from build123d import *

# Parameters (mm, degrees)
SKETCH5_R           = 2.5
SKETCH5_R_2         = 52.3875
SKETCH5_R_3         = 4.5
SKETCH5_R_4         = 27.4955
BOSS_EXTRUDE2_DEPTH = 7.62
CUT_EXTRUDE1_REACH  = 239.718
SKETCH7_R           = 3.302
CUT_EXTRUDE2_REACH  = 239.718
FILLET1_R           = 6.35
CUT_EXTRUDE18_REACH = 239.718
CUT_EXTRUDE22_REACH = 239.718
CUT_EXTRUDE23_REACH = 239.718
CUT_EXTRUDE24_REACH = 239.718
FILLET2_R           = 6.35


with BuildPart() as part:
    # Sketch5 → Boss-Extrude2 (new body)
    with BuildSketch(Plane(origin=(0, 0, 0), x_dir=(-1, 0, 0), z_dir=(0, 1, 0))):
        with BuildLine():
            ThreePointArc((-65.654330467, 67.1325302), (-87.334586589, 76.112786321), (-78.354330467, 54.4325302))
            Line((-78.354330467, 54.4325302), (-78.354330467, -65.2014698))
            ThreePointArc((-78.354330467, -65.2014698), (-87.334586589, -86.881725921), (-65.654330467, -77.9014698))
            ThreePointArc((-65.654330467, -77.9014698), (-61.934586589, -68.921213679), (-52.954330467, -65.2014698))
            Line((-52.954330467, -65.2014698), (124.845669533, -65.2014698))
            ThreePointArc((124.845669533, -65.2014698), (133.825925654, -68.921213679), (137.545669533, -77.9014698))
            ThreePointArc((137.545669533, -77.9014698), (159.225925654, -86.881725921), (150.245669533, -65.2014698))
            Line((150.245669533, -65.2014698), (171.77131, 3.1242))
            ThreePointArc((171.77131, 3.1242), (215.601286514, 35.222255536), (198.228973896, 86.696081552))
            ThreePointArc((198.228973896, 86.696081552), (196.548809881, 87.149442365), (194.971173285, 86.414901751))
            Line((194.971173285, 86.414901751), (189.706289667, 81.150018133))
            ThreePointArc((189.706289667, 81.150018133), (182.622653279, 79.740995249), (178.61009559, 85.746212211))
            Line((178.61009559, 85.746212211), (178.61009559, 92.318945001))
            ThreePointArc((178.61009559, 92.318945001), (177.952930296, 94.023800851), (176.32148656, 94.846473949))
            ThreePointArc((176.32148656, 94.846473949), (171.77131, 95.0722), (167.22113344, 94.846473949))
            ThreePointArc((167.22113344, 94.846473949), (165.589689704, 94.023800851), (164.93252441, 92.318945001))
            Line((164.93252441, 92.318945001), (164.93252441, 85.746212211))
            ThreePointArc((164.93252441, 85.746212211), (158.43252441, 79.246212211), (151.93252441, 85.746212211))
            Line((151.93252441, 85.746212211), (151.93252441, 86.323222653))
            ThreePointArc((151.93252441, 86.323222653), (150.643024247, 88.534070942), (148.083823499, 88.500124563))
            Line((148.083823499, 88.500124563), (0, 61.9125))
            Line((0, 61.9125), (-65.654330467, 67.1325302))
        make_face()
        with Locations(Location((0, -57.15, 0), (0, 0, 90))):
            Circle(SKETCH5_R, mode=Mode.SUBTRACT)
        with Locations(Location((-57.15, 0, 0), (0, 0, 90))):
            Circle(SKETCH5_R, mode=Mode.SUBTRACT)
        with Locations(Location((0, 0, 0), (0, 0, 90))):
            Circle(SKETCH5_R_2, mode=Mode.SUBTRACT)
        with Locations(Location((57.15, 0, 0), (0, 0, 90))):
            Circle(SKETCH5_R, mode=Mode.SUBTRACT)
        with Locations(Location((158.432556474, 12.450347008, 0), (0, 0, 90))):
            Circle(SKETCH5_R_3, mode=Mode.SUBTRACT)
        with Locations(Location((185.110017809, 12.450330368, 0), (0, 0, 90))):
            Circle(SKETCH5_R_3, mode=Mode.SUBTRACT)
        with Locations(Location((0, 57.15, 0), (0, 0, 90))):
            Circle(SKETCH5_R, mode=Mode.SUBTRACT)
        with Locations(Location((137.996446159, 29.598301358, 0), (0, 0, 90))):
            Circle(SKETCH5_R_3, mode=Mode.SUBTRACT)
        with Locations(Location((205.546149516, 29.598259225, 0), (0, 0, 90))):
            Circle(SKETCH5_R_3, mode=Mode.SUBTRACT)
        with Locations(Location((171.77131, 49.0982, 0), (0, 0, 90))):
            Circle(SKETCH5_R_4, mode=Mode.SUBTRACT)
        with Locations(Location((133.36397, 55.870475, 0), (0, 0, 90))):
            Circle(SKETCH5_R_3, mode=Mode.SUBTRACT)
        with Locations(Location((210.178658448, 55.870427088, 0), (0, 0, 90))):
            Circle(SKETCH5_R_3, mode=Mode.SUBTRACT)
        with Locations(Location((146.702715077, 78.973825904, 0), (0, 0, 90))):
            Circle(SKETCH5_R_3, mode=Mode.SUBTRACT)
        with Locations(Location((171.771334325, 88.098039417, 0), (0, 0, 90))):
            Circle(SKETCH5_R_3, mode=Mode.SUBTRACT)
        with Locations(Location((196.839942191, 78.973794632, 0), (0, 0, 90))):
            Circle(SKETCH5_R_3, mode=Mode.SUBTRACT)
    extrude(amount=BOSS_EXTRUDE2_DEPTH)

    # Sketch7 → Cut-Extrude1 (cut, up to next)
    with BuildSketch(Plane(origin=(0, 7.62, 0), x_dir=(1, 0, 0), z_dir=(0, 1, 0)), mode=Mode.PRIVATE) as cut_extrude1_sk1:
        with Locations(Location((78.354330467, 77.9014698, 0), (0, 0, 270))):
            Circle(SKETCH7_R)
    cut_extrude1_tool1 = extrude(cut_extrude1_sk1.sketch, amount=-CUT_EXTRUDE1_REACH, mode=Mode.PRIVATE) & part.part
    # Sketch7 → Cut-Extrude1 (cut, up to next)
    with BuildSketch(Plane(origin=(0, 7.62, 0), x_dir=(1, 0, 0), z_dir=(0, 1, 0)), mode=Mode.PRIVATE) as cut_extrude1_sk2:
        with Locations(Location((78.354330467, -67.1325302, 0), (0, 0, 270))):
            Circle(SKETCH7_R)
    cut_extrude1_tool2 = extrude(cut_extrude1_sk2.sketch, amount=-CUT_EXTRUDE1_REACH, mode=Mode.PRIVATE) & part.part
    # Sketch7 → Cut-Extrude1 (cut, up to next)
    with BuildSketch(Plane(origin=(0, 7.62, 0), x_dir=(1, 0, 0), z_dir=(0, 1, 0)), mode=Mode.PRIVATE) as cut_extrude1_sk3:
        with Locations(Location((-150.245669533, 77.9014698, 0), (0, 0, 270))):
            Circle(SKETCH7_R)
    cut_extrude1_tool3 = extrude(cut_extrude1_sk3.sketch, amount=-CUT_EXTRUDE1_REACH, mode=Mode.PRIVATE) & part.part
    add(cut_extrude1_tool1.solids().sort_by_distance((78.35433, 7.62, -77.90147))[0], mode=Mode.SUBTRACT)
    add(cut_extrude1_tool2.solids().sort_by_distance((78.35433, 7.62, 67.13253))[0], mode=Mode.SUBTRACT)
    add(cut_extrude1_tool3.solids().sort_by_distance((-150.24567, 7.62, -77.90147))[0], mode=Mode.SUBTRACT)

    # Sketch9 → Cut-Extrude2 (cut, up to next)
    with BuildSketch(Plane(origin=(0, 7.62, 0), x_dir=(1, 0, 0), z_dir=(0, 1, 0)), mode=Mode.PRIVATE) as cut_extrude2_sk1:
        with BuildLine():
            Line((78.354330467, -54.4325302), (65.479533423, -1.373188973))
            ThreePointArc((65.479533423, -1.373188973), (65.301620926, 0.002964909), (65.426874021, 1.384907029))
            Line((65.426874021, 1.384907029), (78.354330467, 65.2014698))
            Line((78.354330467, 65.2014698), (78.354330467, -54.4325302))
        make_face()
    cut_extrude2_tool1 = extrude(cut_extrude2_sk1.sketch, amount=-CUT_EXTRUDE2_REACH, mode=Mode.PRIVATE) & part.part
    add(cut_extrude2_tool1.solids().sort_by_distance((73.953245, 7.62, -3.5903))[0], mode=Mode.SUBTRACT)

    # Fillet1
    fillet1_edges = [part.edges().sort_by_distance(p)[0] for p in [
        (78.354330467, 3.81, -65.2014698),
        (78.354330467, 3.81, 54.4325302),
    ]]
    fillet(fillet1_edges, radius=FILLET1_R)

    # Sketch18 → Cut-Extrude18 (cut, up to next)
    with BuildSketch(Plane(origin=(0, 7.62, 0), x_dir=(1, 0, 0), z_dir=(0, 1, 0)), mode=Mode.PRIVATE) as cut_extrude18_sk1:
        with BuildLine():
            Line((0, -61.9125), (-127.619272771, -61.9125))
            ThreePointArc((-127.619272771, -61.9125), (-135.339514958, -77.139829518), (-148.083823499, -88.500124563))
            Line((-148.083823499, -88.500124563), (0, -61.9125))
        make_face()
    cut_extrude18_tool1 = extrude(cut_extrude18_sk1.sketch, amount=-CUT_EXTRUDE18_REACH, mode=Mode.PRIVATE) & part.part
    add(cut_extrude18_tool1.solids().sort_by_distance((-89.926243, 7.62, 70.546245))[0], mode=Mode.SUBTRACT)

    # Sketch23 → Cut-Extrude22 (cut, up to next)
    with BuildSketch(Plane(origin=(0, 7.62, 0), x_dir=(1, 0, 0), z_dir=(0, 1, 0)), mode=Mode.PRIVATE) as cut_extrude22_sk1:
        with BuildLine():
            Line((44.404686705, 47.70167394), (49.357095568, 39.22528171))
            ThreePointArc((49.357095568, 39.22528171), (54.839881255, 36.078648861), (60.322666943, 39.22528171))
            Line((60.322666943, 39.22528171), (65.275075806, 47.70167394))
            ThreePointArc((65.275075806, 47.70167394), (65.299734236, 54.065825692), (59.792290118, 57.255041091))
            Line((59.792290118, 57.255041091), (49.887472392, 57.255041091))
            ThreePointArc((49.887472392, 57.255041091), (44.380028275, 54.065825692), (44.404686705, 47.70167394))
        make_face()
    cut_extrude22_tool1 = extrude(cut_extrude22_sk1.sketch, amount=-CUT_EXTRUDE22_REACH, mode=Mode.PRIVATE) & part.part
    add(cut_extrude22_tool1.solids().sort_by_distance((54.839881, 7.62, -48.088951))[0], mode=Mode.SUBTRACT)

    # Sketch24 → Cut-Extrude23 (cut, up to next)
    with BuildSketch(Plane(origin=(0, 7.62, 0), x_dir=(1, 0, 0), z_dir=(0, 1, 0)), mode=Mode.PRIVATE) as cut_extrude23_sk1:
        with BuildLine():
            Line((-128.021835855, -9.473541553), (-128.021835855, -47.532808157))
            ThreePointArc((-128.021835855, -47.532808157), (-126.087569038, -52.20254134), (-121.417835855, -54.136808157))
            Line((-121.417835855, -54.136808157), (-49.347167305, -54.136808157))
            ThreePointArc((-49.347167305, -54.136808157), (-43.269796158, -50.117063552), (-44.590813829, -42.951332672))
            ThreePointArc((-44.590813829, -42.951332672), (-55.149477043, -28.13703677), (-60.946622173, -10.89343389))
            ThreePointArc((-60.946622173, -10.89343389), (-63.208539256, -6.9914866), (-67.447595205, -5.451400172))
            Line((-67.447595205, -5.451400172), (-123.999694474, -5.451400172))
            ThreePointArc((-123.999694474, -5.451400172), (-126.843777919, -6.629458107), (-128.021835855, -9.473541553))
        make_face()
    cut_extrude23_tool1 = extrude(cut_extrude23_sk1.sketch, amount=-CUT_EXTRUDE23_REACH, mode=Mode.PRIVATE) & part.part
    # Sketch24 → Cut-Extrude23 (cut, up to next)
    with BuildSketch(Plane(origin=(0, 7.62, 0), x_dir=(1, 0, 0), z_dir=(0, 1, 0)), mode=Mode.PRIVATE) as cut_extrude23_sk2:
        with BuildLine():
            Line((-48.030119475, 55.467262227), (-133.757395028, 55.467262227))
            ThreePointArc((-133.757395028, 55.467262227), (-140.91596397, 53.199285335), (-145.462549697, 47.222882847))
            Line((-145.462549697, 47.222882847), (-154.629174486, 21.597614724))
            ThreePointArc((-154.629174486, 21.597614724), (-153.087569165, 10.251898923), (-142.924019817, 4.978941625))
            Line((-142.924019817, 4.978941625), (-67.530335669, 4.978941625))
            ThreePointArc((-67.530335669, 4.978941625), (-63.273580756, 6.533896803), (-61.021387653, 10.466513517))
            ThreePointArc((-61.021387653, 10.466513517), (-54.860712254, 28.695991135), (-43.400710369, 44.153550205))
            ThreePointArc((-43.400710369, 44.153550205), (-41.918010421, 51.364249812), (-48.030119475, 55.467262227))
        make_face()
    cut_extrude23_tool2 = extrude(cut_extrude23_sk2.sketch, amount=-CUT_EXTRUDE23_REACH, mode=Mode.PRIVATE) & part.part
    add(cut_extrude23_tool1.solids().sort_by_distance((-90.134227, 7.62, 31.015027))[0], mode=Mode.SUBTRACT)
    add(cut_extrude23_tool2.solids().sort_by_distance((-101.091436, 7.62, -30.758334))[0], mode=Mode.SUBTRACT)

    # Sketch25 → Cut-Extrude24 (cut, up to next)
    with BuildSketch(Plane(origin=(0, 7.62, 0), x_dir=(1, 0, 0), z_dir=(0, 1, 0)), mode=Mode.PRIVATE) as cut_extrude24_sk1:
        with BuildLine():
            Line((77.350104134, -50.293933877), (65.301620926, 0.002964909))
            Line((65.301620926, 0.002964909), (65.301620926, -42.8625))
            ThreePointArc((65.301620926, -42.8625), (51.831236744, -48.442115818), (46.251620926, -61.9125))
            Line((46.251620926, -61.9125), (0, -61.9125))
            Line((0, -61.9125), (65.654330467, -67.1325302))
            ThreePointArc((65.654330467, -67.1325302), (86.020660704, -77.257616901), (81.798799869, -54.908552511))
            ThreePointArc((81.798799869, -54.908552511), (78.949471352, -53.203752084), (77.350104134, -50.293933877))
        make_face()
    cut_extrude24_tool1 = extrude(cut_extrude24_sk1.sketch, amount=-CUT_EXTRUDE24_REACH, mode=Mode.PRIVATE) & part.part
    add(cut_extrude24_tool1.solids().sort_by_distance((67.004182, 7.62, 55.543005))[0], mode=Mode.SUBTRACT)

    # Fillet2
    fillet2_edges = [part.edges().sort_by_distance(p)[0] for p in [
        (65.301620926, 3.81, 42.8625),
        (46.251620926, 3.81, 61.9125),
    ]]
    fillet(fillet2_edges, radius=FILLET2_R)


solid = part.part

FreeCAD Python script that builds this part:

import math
import FreeCAD as App
import Part
import Sketcher

V = App.Vector
Q = App.Units.Quantity


def edges_at(feature, points):
    """Names of the edges that pass closest to the given points."""
    edges = feature.Shape.Edges
    near = lambda p: min(range(len(edges)), key=lambda i: edges[i].distToShape(Part.Vertex(*p))[0])
    return sorted({f"Edge{near(p) + 1}" for p in points})

doc = App.newDocument("Part")
body = doc.addObject("PartDesign::Body", "Body")

# Sketch on XZ plane
sketch1 = body.newObject("Sketcher::SketchObject", "Sketch")
sketch1.AttachmentSupport = (doc.getObject("XZ_Plane"), [""])
sketch1.MapMode = "FlatFace"
sketch1.addGeometry([
    Part.ArcOfCircle(Part.Circle(V(78.4, 67.1, 0), V(0, 0, 1), 12.7), math.radians(-90), math.radians(180)),  # 0
    Part.LineSegment(V(78.4, 54.4, 0), V(78.4, -65.2, 0)),  # 1
    Part.ArcOfCircle(Part.Circle(V(78.4, -77.9, 0), V(0, 0, 1), 12.7), math.radians(180), math.radians(450)),  # 2
    Part.ArcOfCircle(Part.Circle(V(53, -77.9, 0), V(0, 0, 1), 12.7), math.radians(0), math.radians(90)),  # 3
    Part.LineSegment(V(53, -65.2, 0), V(-124.8, -65.2, 0)),  # 4
    Part.ArcOfCircle(Part.Circle(V(-124.8, -77.9, 0), V(0, 0, 1), 12.7), math.radians(90), math.radians(180)),  # 5
    Part.ArcOfCircle(Part.Circle(V(-150.2, -77.9, 0), V(0, 0, 1), 12.7), math.radians(90), math.radians(360)),  # 6
    Part.LineSegment(V(-150.2, -65.2, 0), V(-171.8, 3.1, 0)),  # 7
    Part.ArcOfCircle(Part.Circle(V(-171.8, 49.1, 0), V(0, 0, 1), 46), math.radians(125), math.radians(270)),  # 8
    Part.ArcOfCircle(Part.Circle(V(-196.8, 84.6, 0), V(0, 0, 1), 2.5), math.radians(45), math.radians(125)),  # 9
    Part.LineSegment(V(-195, 86.4, 0), V(-189.7, 81.2, 0)),  # 10
    Part.ArcOfCircle(Part.Circle(V(-185.1, 85.7, 0), V(0, 0, 1), 6.5), math.radians(-135), math.radians(0)),  # 11
    Part.LineSegment(V(-178.6, 85.7, 0), V(-178.6, 92.3, 0)),  # 12
    Part.ArcOfCircle(Part.Circle(V(-176.1, 92.3, 0), V(0, 0, 1), 2.5), math.radians(96), math.radians(180)),  # 13
    Part.ArcOfCircle(Part.Circle(V(-171.8, 49.1, 0), V(0, 0, 1), 46), math.radians(84.32), math.radians(95.68)),  # 14
    Part.ArcOfCircle(Part.Circle(V(-167.5, 92.3, 0), V(0, 0, 1), 2.5), math.radians(0), math.radians(84)),  # 15
    Part.LineSegment(V(-164.9, 92.3, 0), V(-164.9, 85.7, 0)),  # 16
    Part.ArcOfCircle(Part.Circle(V(-158.4, 85.7, 0), V(0, 0, 1), 6.5), math.radians(180), math.radians(360)),  # 17
    Part.LineSegment(V(-151.9, 85.7, 0), V(-151.9, 86.3, 0)),  # 18
    Part.ArcOfCircle(Part.Circle(V(-149.4, 86.3, 0), V(0, 0, 1), 2.5), math.radians(59), math.radians(180)),  # 19
    Part.LineSegment(V(-148.1, 88.5, 0), V(0, 61.9, 0)),  # 20
    Part.LineSegment(V(0, 61.9, 0), V(65.7, 67.1, 0)),  # 21
    Part.Circle(V(0, -57.1, 0), V(0, 0, 1), 2.5),  # 22
    Part.Circle(V(57.1, 0, 0), V(0, 0, 1), 2.5),  # 23
    Part.Circle(V(0, 0, 0), V(0, 0, 1), 52.4),  # 24
    Part.Circle(V(-57.1, 0, 0), V(0, 0, 1), 2.5),  # 25
    Part.Circle(V(-158.4, 12.5, 0), V(0, 0, 1), 4.5),  # 26
    Part.Circle(V(-185.1, 12.5, 0), V(0, 0, 1), 4.5),  # 27
    Part.Circle(V(0, 57.1, 0), V(0, 0, 1), 2.5),  # 28
    Part.Circle(V(-138, 29.6, 0), V(0, 0, 1), 4.5),  # 29
    Part.Circle(V(-205.5, 29.6, 0), V(0, 0, 1), 4.5),  # 30
    Part.Circle(V(-171.8, 49.1, 0), V(0, 0, 1), 27.5),  # 31
    Part.Circle(V(-133.4, 55.9, 0), V(0, 0, 1), 4.5),  # 32
    Part.Circle(V(-210.2, 55.9, 0), V(0, 0, 1), 4.5),  # 33
    Part.Circle(V(-146.7, 79, 0), V(0, 0, 1), 4.5),  # 34
    Part.Circle(V(-171.8, 88.1, 0), V(0, 0, 1), 4.5),  # 35
    Part.Circle(V(-196.8, 79, 0), V(0, 0, 1), 4.5),  # 36
], False)
sketch1.addConstraint([
    Sketcher.Constraint("Coincident", 0, 1, 1, 1),
    Sketcher.Constraint("Coincident", 1, 2, 2, 2),
    Sketcher.Constraint("Tangent", 2, 1, 3, 1),
    Sketcher.Constraint("Tangent", 3, 2, 4, 1),
    Sketcher.Constraint("Tangent", 4, 2, 5, 1),
    Sketcher.Constraint("Tangent", 5, 2, 6, 2),
    Sketcher.Constraint("Coincident", 6, 1, 7, 1),
    Sketcher.Constraint("Coincident", 7, 2, 8, 2),
    Sketcher.Constraint("Tangent", 8, 1, 9, 2),
    Sketcher.Constraint("Tangent", 9, 1, 10, 1),
    Sketcher.Constraint("Tangent", 10, 2, 11, 1),
    Sketcher.Constraint("Tangent", 11, 2, 12, 1),
    Sketcher.Constraint("Tangent", 12, 2, 13, 2),
    Sketcher.Constraint("Tangent", 13, 1, 14, 2),
    Sketcher.Constraint("Tangent", 14, 1, 15, 2),
    Sketcher.Constraint("Tangent", 15, 1, 16, 1),
    Sketcher.Constraint("Tangent", 16, 2, 17, 1),
    Sketcher.Constraint("Tangent", 17, 2, 18, 1),
    Sketcher.Constraint("Tangent", 18, 2, 19, 2),
    Sketcher.Constraint("Coincident", 19, 1, 20, 1),
    Sketcher.Constraint("Coincident", 20, 2, 21, 1),
    Sketcher.Constraint("Coincident", 21, 2, 0, 2),
    Sketcher.Constraint("Vertical", 1),
    Sketcher.Constraint("Horizontal", 4),
    Sketcher.Constraint("Vertical", 12),
    Sketcher.Constraint("Vertical", 16),
    Sketcher.Constraint("Vertical", 18),
    Sketcher.Constraint("Coincident", 24, 3, -1, 1),
    Sketcher.Constraint("Coincident", 14, 3, 8, 3),
    Sketcher.Constraint("Coincident", 31, 3, 8, 3),
    Sketcher.Constraint("Equal", 0, 2),
    Sketcher.Constraint("Equal", 2, 3),
    Sketcher.Constraint("Equal", 3, 5),
    Sketcher.Constraint("Equal", 5, 6),
    Sketcher.Constraint("Equal", 9, 13),
    Sketcher.Constraint("Equal", 8, 14),
    Sketcher.Constraint("Equal", 13, 15),
    Sketcher.Constraint("Equal", 11, 17),
    Sketcher.Constraint("Equal", 15, 19),
    Sketcher.Constraint("Equal", 22, 23),
    Sketcher.Constraint("Equal", 23, 25),
    Sketcher.Constraint("Equal", 26, 27),
    Sketcher.Constraint("Equal", 25, 28),
    Sketcher.Constraint("Equal", 27, 29),
    Sketcher.Constraint("Equal", 29, 30),
    Sketcher.Constraint("Equal", 30, 32),
    Sketcher.Constraint("Equal", 32, 33),
    Sketcher.Constraint("Equal", 33, 34),
    Sketcher.Constraint("Equal", 34, 35),
    Sketcher.Constraint("Equal", 35, 36),
    Sketcher.Constraint("Symmetric", 23, 3, 25, 3, -1, 1),
    Sketcher.Constraint("Symmetric", 22, 3, 28, 3, -1, 1),
    Sketcher.Constraint("PointOnObject", 22, 3, -2),
    Sketcher.Constraint("PointOnObject", 23, 3, -1),
    Sketcher.Constraint("PointOnObject", 20, 2, -2),
    Sketcher.Constraint("Horizontal", 2, 3, 3, 3),
    Sketcher.Constraint("Horizontal", 5, 3, 6, 3),
    Sketcher.Constraint("Horizontal", 13, 3, 15, 3),
    Sketcher.Constraint("Horizontal", 11, 3, 17, 3),
    Sketcher.Constraint("Horizontal", 0, 3, 21, 2),
    Sketcher.Constraint("Vertical", 0, 3, 2, 3),
    Sketcher.Constraint("Vertical", 2, 3, 0, 1),
    Sketcher.Constraint("Vertical", 31, 3, 7, 2),
    Sketcher.Constraint("Radius", 0, Q("0.5 in")),
    Sketcher.Constraint("Radius", 9, Q("0.1 in")),
    Sketcher.Constraint("DistanceX", 4, 2, 4, 1, Q("7 in")),
    Sketcher.Constraint("Radius", 8, Q("1.81 in")),
    Sketcher.Constraint("Diameter", 24, Q("4.125 in")),
    Sketcher.Constraint("Diameter", 31, Q("2.165 in")),
    Sketcher.Constraint("Angle", 10, Q("-45 deg")),
    Sketcher.Constraint("DistanceX", 6, 1, 4, 2, Q("1 in")),
    Sketcher.Constraint("DistanceY", 1, 2, 1, 1, Q("4.71 in")),
    Sketcher.Constraint("DistanceX", 25, 3, 23, 3, Q("4.5 in")),
    Sketcher.Constraint("DistanceY", 22, 3, 28, 3, Q("4.5 in")),
    Sketcher.Constraint("Diameter", 22, Q("5 mm")),
    Sketcher.Constraint("Diameter", 26, Q("9 mm")),
    Sketcher.Constraint("Radius", 11, Q("6.5 mm")),
    Sketcher.Constraint("DistanceY", -1, 1, 8, 3, Q("1.933 in")),
    Sketcher.Constraint("DistanceY", -1, 1, 20, 2, Q("2.4375 in")),
    Sketcher.Constraint("DistanceX", 8, 3, 32, 3, Q("1.5121 in")),
    Sketcher.Constraint("DistanceY", 18, 1, 18, 2, Q("0.57701 mm")),
    Sketcher.Constraint("DistanceY", -1, 1, 29, 3, Q("29.598301 mm")),
    Sketcher.Constraint("DistanceY", -1, 1, 9, 1, Q("86.414902 mm")),
    Sketcher.Constraint("DistanceX", 9, 3, 15, 3, Q("29.2947 mm")),
    Sketcher.Constraint("DistanceY", 5, 2, 27, 3, Q("90.3518 mm")),
    Sketcher.Constraint("DistanceX", 35, 3, 14, 1, Q("4.550201 mm")),
    Sketcher.Constraint("DistanceX", 19, 3, 19, 1, Q("1.308701 mm")),
    Sketcher.Constraint("DistanceY", 34, 3, 19, 1, Q("9.526299 mm")),
    Sketcher.Constraint("Distance", 20, Q("150.451722 mm")),
    Sketcher.Constraint("Distance", 21, Q("65.86152 mm")),
    Sketcher.Constraint("DistanceX", -1, 1, 0, 3, Q("78.35433 mm")),
    Sketcher.Constraint("DistanceX", 30, 3, -1, 1, Q("205.54615 mm")),
    Sketcher.Constraint("DistanceY", -1, 1, 30, 3, Q("29.598259 mm")),
    Sketcher.Constraint("DistanceX", 33, 3, -1, 1, Q("210.178658 mm")),
    Sketcher.Constraint("DistanceY", -1, 1, 35, 3, Q("88.098039 mm")),
    Sketcher.Constraint("DistanceX", 11, 3, 26, 3, Q("26.677539 mm")),
    Sketcher.Constraint("DistanceX", 27, 3, 26, 3, Q("26.677461 mm")),
    Sketcher.Constraint("DistanceX", 26, 3, 29, 3, Q("20.43611 mm")),
    Sketcher.Constraint("DistanceX", 19, 3, 34, 3, Q("2.689809 mm")),
    Sketcher.Constraint("DistanceY", 32, 3, 34, 3, Q("23.103351 mm")),
    Sketcher.Constraint("DistanceY", 36, 3, 13, 3, Q("13.34515 mm")),
    Sketcher.Constraint("DistanceX", 8, 1, 36, 3, Q("1.389032 mm")),
    Sketcher.Constraint("DistanceY", -1, 1, 26, 3, Q("12.450347 mm")),
    Sketcher.Constraint("DistanceY", -1, 1, 33, 3, Q("55.870427 mm")),
])
pad1 = body.newObject("PartDesign::Pad", "Pad")
pad1.Profile = sketch1
pad1.Length = Q("0.3 in")
pad1.Reversed = True

# Sketch on XZ plane
sketch2 = body.newObject("Sketcher::SketchObject", "Sketch001")
sketch2.AttachmentSupport = (doc.getObject("XZ_Plane"), [""])
sketch2.MapMode = "FlatFace"
sketch2.AttachmentOffset = App.Placement(V(0, 0, -0.3 * 25.4), App.Rotation())
sketch2.addGeometry(Part.Circle(V(78.4, -77.9, 0), V(0, 0, 1), 3.3), False)
sketch2.addConstraint([
    Sketcher.Constraint("Diameter", 0, Q("0.26 in")),
    Sketcher.Constraint("DistanceX", -1, 1, 0, 3, Q("78.35433 mm")),
    Sketcher.Constraint("DistanceY", 0, 3, -1, 1, Q("77.90147 mm")),
])
pocket1 = body.newObject("PartDesign::Pocket", "Pocket")
pocket1.Profile = sketch2
pocket1.Type = "UpToFirst"
pocket1.Reversed = True

# Sketch on XZ plane
sketch3 = body.newObject("Sketcher::SketchObject", "Sketch002")
sketch3.AttachmentSupport = (doc.getObject("XZ_Plane"), [""])
sketch3.MapMode = "FlatFace"
sketch3.AttachmentOffset = App.Placement(V(0, 0, -0.3 * 25.4), App.Rotation())
sketch3.addGeometry(Part.Circle(V(78.4, 67.1, 0), V(0, 0, 1), 3.3), False)
sketch3.addConstraint([
    Sketcher.Constraint("Diameter", 0, Q("0.26 in")),
    Sketcher.Constraint("DistanceX", -1, 1, 0, 3, Q("78.35433 mm")),
    Sketcher.Constraint("DistanceY", -1, 1, 0, 3, Q("67.13253 mm")),
])
pocket2 = body.newObject("PartDesign::Pocket", "Pocket001")
pocket2.Profile = sketch3
pocket2.Type = "UpToFirst"
pocket2.Reversed = True

# Sketch on XZ plane
sketch4 = body.newObject("Sketcher::SketchObject", "Sketch003")
sketch4.AttachmentSupport = (doc.getObject("XZ_Plane"), [""])
sketch4.MapMode = "FlatFace"
sketch4.AttachmentOffset = App.Placement(V(0, 0, -0.3 * 25.4), App.Rotation())
sketch4.addGeometry(Part.Circle(V(-150.2, -77.9, 0), V(0, 0, 1), 3.3), False)
sketch4.addConstraint([
    Sketcher.Constraint("Diameter", 0, Q("0.26 in")),
    Sketcher.Constraint("DistanceX", 0, 3, -1, 1, Q("150.24567 mm")),
    Sketcher.Constraint("DistanceY", 0, 3, -1, 1, Q("77.90147 mm")),
])
pocket3 = body.newObject("PartDesign::Pocket", "Pocket002")
pocket3.Profile = sketch4
pocket3.Type = "UpToFirst"
pocket3.Reversed = True

# Sketch on XZ plane
sketch5 = body.newObject("Sketcher::SketchObject", "Sketch004")
sketch5.AttachmentSupport = (doc.getObject("XZ_Plane"), [""])
sketch5.MapMode = "FlatFace"
sketch5.AttachmentOffset = App.Placement(V(0, 0, -0.3 * 25.4), App.Rotation())
sketch5.addGeometry([
    Part.LineSegment(V(65.5, 1.4, 0), V(78.4, 54.4, 0)),
    Part.LineSegment(V(78.4, 54.4, 0), V(78.4, -65.2, 0)),
    Part.LineSegment(V(78.4, -65.2, 0), V(65.4, -1.4, 0)),
    Part.ArcOfCircle(Part.Circle(V(71.7, -0.1, 0), V(0, 0, 1), 6.4), math.radians(166), math.radians(191)),
], False)
sketch5.addConstraint([
    Sketcher.Constraint("Coincident", 0, 2, 1, 1),
    Sketcher.Constraint("Coincident", 1, 2, 2, 1),
    Sketcher.Constraint("Tangent", 2, 2, 3, 2),
    Sketcher.Constraint("Tangent", 3, 1, 0, 1),
    Sketcher.Constraint("Vertical", 1),
    Sketcher.Constraint("Radius", 3, Q("0.25 in")),
    Sketcher.Constraint("DistanceY", 1, 2, 1, 1, Q("4.71 in")),
    Sketcher.Constraint("Distance", 0, Q("54.59903 mm")),
    Sketcher.Constraint("Distance", 2, Q("65.11277 mm")),
    Sketcher.Constraint("DistanceY", 3, 3, -1, 1, Q("0.124181 mm")),
    Sketcher.Constraint("DistanceX", -1, 1, 0, 2, Q("78.35433 mm")),
])
pocket4 = body.newObject("PartDesign::Pocket", "Pocket003")
pocket4.Profile = sketch5
pocket4.Type = "UpToFirst"
pocket4.Reversed = True
doc.recompute()

fillet = body.newObject("PartDesign::Fillet", "Fillet")
fillet.Base = (pocket4, edges_at(pocket4, [(78.354, 3.81, -65.201), (78.354, 3.81, 54.433)]))
fillet.Radius = Q("0.25 in")

# Sketch on XZ plane
sketch6 = body.newObject("Sketcher::SketchObject", "Sketch005")
sketch6.AttachmentSupport = (doc.getObject("XZ_Plane"), [""])
sketch6.MapMode = "FlatFace"
sketch6.AttachmentOffset = App.Placement(V(0, 0, -0.3 * 25.4), App.Rotation())
sketch6.addGeometry([
    Part.LineSegment(V(0, 62, 0), V(-128, 62, 0)),
    Part.ArcOfCircle(Part.Circle(V(-172, 49, 0), V(0, 0, 1), 46), math.radians(16), math.radians(59)),
    Part.LineSegment(V(-148, 89, 0), V(0, 62, 0)),
], False)
sketch6.addConstraint([
    Sketcher.Constraint("Coincident", 0, 2, 1, 1),
    Sketcher.Constraint("Coincident", 1, 2, 2, 1),
    Sketcher.Constraint("Coincident", 2, 2, 0, 1),
    Sketcher.Constraint("Horizontal", 0),
    Sketcher.Constraint("PointOnObject", 2, 2, -2),
    Sketcher.Constraint("Radius", 1, Q("1.81 in")),
    Sketcher.Constraint("DistanceY", -1, 1, 1, 3, Q("1.933 in")),
    Sketcher.Constraint("DistanceY", -1, 1, 0, 2, Q("2.4375 in")),
    Sketcher.Constraint("Distance", 2, Q("150.451722 mm")),
    Sketcher.Constraint("DistanceX", 0, 2, 0, 1, Q("127.619273 mm")),
])
pocket5 = body.newObject("PartDesign::Pocket", "Pocket004")
pocket5.Profile = sketch6
pocket5.Type = "UpToFirst"
pocket5.Reversed = True

# Sketch on XZ plane
sketch7 = body.newObject("Sketcher::SketchObject", "Sketch006")
sketch7.AttachmentSupport = (doc.getObject("XZ_Plane"), [""])
sketch7.MapMode = "FlatFace"
sketch7.AttachmentOffset = App.Placement(V(0, 0, -0.3 * 25.4), App.Rotation())
sketch7.addGeometry([
    Part.LineSegment(V(44, -48, 0), V(49, -39, 0)),  # 0
    Part.ArcOfCircle(Part.Circle(V(55, -42, 0), V(0, 0, 1), 6), math.radians(30), math.radians(150)),  # 1
    Part.LineSegment(V(60, -39, 0), V(65, -48, 0)),  # 2
    Part.ArcOfCircle(Part.Circle(V(60, -51, 0), V(0, 0, 1), 6), math.radians(-90), math.radians(30)),  # 3
    Part.LineSegment(V(60, -57, 0), V(50, -57, 0)),  # 4
    Part.ArcOfCircle(Part.Circle(V(50, -51, 0), V(0, 0, 1), 6), math.radians(150), math.radians(270)),  # 5
], False)
sketch7.addConstraint([
    Sketcher.Constraint("Tangent", 0, 2, 1, 2),
    Sketcher.Constraint("Tangent", 1, 1, 2, 1),
    Sketcher.Constraint("Tangent", 2, 2, 3, 2),
    Sketcher.Constraint("Tangent", 3, 1, 4, 1),
    Sketcher.Constraint("Tangent", 4, 2, 5, 2),
    Sketcher.Constraint("Tangent", 5, 1, 0, 1),
    Sketcher.Constraint("Horizontal", 4),
    Sketcher.Constraint("Equal", 1, 3),
    Sketcher.Constraint("Equal", 3, 5),
    Sketcher.Constraint("Horizontal", 0, 2, 1, 1),
    Sketcher.Constraint("Radius", 1, Q("0.25 in")),
    Sketcher.Constraint("DistanceX", 4, 2, 4, 1, Q("9.904818 mm")),
    Sketcher.Constraint("DistanceX", -1, 1, 1, 3, Q("54.839881 mm")),
    Sketcher.Constraint("DistanceY", 1, 3, -1, 1, Q("42.428649 mm")),
    Sketcher.Constraint("DistanceY", 3, 3, -1, 1, Q("50.905041 mm")),
])
pocket6 = body.newObject("PartDesign::Pocket", "Pocket005")
pocket6.Profile = sketch7
pocket6.Type = "UpToFirst"
pocket6.Reversed = True

# Sketch on XZ plane
sketch8 = body.newObject("Sketcher::SketchObject", "Sketch007")
sketch8.AttachmentSupport = (doc.getObject("XZ_Plane"), [""])
sketch8.MapMode = "FlatFace"
sketch8.AttachmentOffset = App.Placement(V(0, 0, -0.3 * 25.4), App.Rotation())
sketch8.addGeometry([
    Part.LineSegment(V(-128, 9.5, 0), V(-128, 47.5, 0)),  # 0
    Part.ArcOfCircle(Part.Circle(V(-121.4, 47.5, 0), V(0, 0, 1), 6.6), math.radians(90), math.radians(180)),  # 1
    Part.LineSegment(V(-121.4, 54.1, 0), V(-49.3, 54.1, 0)),  # 2
    Part.ArcOfCircle(Part.Circle(V(-49.3, 47.5, 0), V(0, 0, 1), 6.6), math.radians(-44), math.radians(90)),  # 3
    Part.ArcOfCircle(Part.Circle(V(0, 0, 0), V(0, 0, 1), 61.9), math.radians(136), math.radians(170)),  # 4
    Part.ArcOfCircle(Part.Circle(V(-67.4, 12.1, 0), V(0, 0, 1), 6.6), math.radians(-90), math.radians(-10)),  # 5
    Part.LineSegment(V(-67.4, 5.5, 0), V(-124, 5.5, 0)),  # 6
    Part.ArcOfCircle(Part.Circle(V(-124, 9.5, 0), V(0, 0, 1), 4), math.radians(180), math.radians(270)),  # 7
], False)
sketch8.addConstraint([
    Sketcher.Constraint("Tangent", 0, 2, 1, 2),
    Sketcher.Constraint("Tangent", 1, 1, 2, 1),
    Sketcher.Constraint("Tangent", 2, 2, 3, 2),
    Sketcher.Constraint("Tangent", 3, 1, 4, 1),
    Sketcher.Constraint("Tangent", 4, 2, 5, 2),
    Sketcher.Constraint("Tangent", 5, 1, 6, 1),
    Sketcher.Constraint("Tangent", 6, 2, 7, 2),
    Sketcher.Constraint("Tangent", 7, 1, 0, 1),
    Sketcher.Constraint("Vertical", 0),
    Sketcher.Constraint("Horizontal", 2),
    Sketcher.Constraint("Horizontal", 6),
    Sketcher.Constraint("Coincident", 4, 3, -1, 1),
    Sketcher.Constraint("Equal", 1, 3),
    Sketcher.Constraint("Equal", 3, 5),
    Sketcher.Constraint("Radius", 1, Q("0.26 in")),
    Sketcher.Constraint("Radius", 4, Q("2.4375 in")),
    Sketcher.Constraint("Radius", 7, Q("4.022141 mm")),
    Sketcher.Constraint("DistanceX", 6, 2, 6, 1, Q("56.552099 mm")),
    Sketcher.Constraint("DistanceX", 2, 1, 2, 2, Q("72.070669 mm")),
    Sketcher.Constraint("DistanceY", -1, 1, 5, 3, Q("12.0554 mm")),
])
pocket7 = body.newObject("PartDesign::Pocket", "Pocket006")
pocket7.Profile = sketch8
pocket7.Type = "UpToFirst"
pocket7.Reversed = True

# Sketch on XZ plane
sketch9 = body.newObject("Sketcher::SketchObject", "Sketch008")
sketch9.AttachmentSupport = (doc.getObject("XZ_Plane"), [""])
sketch9.MapMode = "FlatFace"
sketch9.AttachmentOffset = App.Placement(V(0, 0, -0.3 * 25.4), App.Rotation())
sketch9.addGeometry([
    Part.LineSegment(V(-48, -55, 0), V(-134, -55, 0)),  # 0
    Part.ArcOfCircle(Part.Circle(V(-134, -43, 0), V(0, 0, 1), 12), math.radians(-160), math.radians(-90)),  # 1
    Part.LineSegment(V(-145, -47, 0), V(-155, -22, 0)),  # 2
    Part.ArcOfCircle(Part.Circle(V(-143, -17, 0), V(0, 0, 1), 12), math.radians(90), math.radians(200)),  # 3
    Part.LineSegment(V(-143, -5, 0), V(-68, -5, 0)),  # 4
    Part.ArcOfCircle(Part.Circle(V(-68, -12, 0), V(0, 0, 1), 7), math.radians(10), math.radians(90)),  # 5
    Part.ArcOfCircle(Part.Circle(V(0, 0, 0), V(0, 0, 1), 62), math.radians(-170), math.radians(-135)),  # 6
    Part.ArcOfCircle(Part.Circle(V(-48, -49, 0), V(0, 0, 1), 7), math.radians(-90), math.radians(45)),  # 7
], False)
sketch9.addConstraint([
    Sketcher.Constraint("Tangent", 0, 2, 1, 2),
    Sketcher.Constraint("Tangent", 1, 1, 2, 1),
    Sketcher.Constraint("Tangent", 2, 2, 3, 2),
    Sketcher.Constraint("Tangent", 3, 1, 4, 1),
    Sketcher.Constraint("Tangent", 4, 2, 5, 2),
    Sketcher.Constraint("Tangent", 5, 1, 6, 1),
    Sketcher.Constraint("Tangent", 6, 2, 7, 2),
    Sketcher.Constraint("Tangent", 7, 1, 0, 1),
    Sketcher.Constraint("Horizontal", 0),
    Sketcher.Constraint("Horizontal", 4),
    Sketcher.Constraint("Coincident", 6, 3, -1, 1),
    Sketcher.Constraint("Equal", 1, 3),
    Sketcher.Constraint("Equal", 5, 7),
    Sketcher.Constraint("Radius", 5, Q("0.26 in")),
    Sketcher.Constraint("Radius", 6, Q("2.4375 in")),
    Sketcher.Constraint("Radius", 1, Q("12.431526 mm")),
    Sketcher.Constraint("DistanceX", 3, 3, 7, 3, Q("94.8939 mm")),
    Sketcher.Constraint("DistanceX", 0, 2, 0, 1, Q("85.727276 mm")),
    Sketcher.Constraint("DistanceX", 4, 1, 4, 2, Q("75.393684 mm")),
    Sketcher.Constraint("DistanceX", 3, 3, -1, 1, Q("142.92402 mm")),
])
pocket8 = body.newObject("PartDesign::Pocket", "Pocket007")
pocket8.Profile = sketch9
pocket8.Type = "UpToFirst"
pocket8.Reversed = True

# Sketch on XZ plane
sketch10 = body.newObject("Sketcher::SketchObject", "Sketch009")
sketch10.AttachmentSupport = (doc.getObject("XZ_Plane"), [""])
sketch10.MapMode = "FlatFace"
sketch10.AttachmentOffset = App.Placement(V(0, 0, -0.3 * 25.4), App.Rotation())
sketch10.addGeometry([
    Part.LineSegment(V(77, 50, 0), V(65, 0, 0)),  # 0
    Part.LineSegment(V(65, 0, 0), V(65, 43, 0)),  # 1
    Part.ArcOfCircle(Part.Circle(V(65, 62, 0), V(0, 0, 1), 19), math.radians(180), math.radians(270)),  # 2
    Part.LineSegment(V(46, 62, 0), V(0, 62, 0)),  # 3
    Part.LineSegment(V(0, 62, 0), V(66, 67, 0)),  # 4
    Part.ArcOfCircle(Part.Circle(V(78, 67, 0), V(0, 0, 1), 13), math.radians(-74), math.radians(180)),  # 5
    Part.ArcOfCircle(Part.Circle(V(84, 49, 0), V(0, 0, 1), 6), math.radians(106), math.radians(166)),  # 6
], False)
sketch10.addConstraint([
    Sketcher.Constraint("Coincident", 0, 2, 1, 1),
    Sketcher.Constraint("Coincident", 1, 2, 2, 2),
    Sketcher.Constraint("Coincident", 2, 1, 3, 1),
    Sketcher.Constraint("Coincident", 3, 2, 4, 1),
    Sketcher.Constraint("Coincident", 4, 2, 5, 2),
    Sketcher.Constraint("Tangent", 5, 1, 6, 1),
    Sketcher.Constraint("Coincident", 6, 2, 0, 1),
    Sketcher.Constraint("Vertical", 1),
    Sketcher.Constraint("Horizontal", 3),
    Sketcher.Constraint("PointOnObject", 3, 2, -2),
    Sketcher.Constraint("Horizontal", 5, 3, 4, 2),
    Sketcher.Constraint("Vertical", 2, 3, 0, 2),
    Sketcher.Constraint("Radius", 5, Q("0.5 in")),
    Sketcher.Constraint("Radius", 2, Q("0.75 in")),
    Sketcher.Constraint("Radius", 6, Q("0.25 in")),
    Sketcher.Constraint("DistanceY", 1, 2, 2, 1, Q("0.75 in")),
    Sketcher.Constraint("DistanceY", -1, 1, 2, 3, Q("2.4375 in")),
    Sketcher.Constraint("DistanceX", 3, 2, 3, 1, Q("46.251621 mm")),
    Sketcher.Constraint("DistanceX", -1, 1, 5, 1, Q("81.7988 mm")),
    Sketcher.Constraint("Distance", 0, Q("51.719861 mm")),
    Sketcher.Constraint("Distance", 4, Q("65.86152 mm")),
    Sketcher.Constraint("DistanceY", 1, 1, 1, 2, Q("42.865465 mm")),
    Sketcher.Constraint("DistanceX", -1, 1, 5, 3, Q("78.35433 mm")),
])
pocket9 = body.newObject("PartDesign::Pocket", "Pocket008")
pocket9.Profile = sketch10
pocket9.Type = "UpToFirst"
pocket9.Reversed = True
doc.recompute()

fillet2 = body.newObject("PartDesign::Fillet", "Fillet001")
fillet2.Base = (pocket9, edges_at(pocket9, [(65.302, 3.81, 42.862), (46.252, 3.81, 61.913)]))
fillet2.Radius = Q("0.25 in")

doc.recompute()
